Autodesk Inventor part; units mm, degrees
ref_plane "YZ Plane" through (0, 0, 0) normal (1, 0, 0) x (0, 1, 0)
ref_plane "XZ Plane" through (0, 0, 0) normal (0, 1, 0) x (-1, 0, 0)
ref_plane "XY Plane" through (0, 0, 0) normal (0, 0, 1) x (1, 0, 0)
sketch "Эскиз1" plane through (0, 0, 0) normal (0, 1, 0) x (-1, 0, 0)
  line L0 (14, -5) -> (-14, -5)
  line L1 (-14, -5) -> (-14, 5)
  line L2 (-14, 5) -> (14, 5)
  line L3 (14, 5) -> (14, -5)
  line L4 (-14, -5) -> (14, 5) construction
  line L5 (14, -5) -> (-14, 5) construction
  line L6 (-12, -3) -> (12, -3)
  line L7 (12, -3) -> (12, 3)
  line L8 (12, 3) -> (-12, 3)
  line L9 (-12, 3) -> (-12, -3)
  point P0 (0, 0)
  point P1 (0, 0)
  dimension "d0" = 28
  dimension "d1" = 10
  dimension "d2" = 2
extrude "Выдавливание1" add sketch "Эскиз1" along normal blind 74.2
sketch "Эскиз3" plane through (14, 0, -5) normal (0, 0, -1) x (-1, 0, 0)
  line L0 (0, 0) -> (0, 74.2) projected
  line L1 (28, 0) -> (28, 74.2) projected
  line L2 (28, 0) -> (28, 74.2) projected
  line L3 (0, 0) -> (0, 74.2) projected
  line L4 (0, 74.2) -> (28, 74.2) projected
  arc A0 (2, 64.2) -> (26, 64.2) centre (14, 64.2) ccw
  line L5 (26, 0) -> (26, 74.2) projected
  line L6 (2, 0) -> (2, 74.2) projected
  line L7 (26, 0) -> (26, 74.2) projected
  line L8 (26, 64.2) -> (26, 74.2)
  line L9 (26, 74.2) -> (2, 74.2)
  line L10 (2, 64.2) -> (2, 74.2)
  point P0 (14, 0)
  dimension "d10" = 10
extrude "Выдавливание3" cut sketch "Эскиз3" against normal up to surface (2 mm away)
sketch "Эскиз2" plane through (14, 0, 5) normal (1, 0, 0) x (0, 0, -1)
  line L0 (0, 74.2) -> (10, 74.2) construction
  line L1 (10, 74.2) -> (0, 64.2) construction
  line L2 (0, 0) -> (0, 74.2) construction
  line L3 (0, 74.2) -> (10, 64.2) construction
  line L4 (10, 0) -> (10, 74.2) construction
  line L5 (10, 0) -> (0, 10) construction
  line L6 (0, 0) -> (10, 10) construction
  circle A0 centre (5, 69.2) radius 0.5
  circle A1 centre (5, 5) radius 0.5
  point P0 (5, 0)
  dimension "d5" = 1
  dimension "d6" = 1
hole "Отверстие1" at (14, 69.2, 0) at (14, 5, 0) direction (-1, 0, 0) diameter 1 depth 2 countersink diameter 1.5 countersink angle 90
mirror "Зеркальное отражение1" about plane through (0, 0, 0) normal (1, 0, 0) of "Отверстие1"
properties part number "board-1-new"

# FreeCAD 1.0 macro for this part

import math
import FreeCAD as App
import Part
import Sketcher


def add_polygon(sketch, points):
    """Adds a closed chain of lines whose ends are joined by coincident constraints."""
    first, n = sketch.GeometryCount, len(points)
    for a, b in zip(points, points[1:] + points[:1]):
        sketch.addGeometry(Part.LineSegment(App.Vector(*a, 0), App.Vector(*b, 0)), False)
    for i in range(n):
        sketch.addConstraint(Sketcher.Constraint("Coincident", first + i, 2, first + (i + 1) % n, 1))

doc = App.newDocument("Part")
params = doc.addObject("Spreadsheet::Sheet", "Params")
for row, (alias, value) in enumerate([
    ("sketch1_width", "28 mm"),
    ("sketch1_height", "10 mm"),
    ("pad1_length", "74.2 mm"),
    ("sketch2_height", "10 mm"),
    ("sketch2_radius", "12 mm"),
    ("pocket1_length", "2 mm"),
    ("sketch3_diameter", "1 mm"),
    ("hole_diameter", "1 mm"),
    ("hole_depth", "2 mm"),
    ("hole_csink_diameter", "1.5 mm"),
], start=1):
    params.set(f"A{row}", alias)
    params.set(f"B{row}", "=" + value)
    params.setAlias(f"B{row}", alias)

body = doc.addObject("PartDesign::Body", "Body")

# Sketch on XZ plane
sketch1 = body.newObject("Sketcher::SketchObject", "Sketch")
sketch1.AttachmentSupport = (doc.getObject("XZ_Plane"), [""])
sketch1.MapMode = "FlatFace"
add_polygon(sketch1, [(14, -5), (-14, -5), (-14, 5), (14, 5)])  # lines 0-3
add_polygon(sketch1, [(-12, -3), (12, -3), (12, 3), (-12, 3)])  # lines 4-7
sketch1.addConstraint([
    Sketcher.Constraint("Horizontal", 0),
    Sketcher.Constraint("Vertical", 1),
    Sketcher.Constraint("Horizontal", 2),
    Sketcher.Constraint("Vertical", 3),
    Sketcher.Constraint("Horizontal", 4),
    Sketcher.Constraint("Vertical", 5),
    Sketcher.Constraint("Horizontal", 6),
    Sketcher.Constraint("Vertical", 7),
    Sketcher.Constraint("Symmetric", 0, 2, 2, 2, -1, 1),
    Sketcher.Constraint("Symmetric", 4, 2, 6, 2, -1, 1),
    Sketcher.Constraint("DistanceX", 0, 2, 0, 1, 28.0),
    Sketcher.Constraint("DistanceY", 1, 1, 1, 2, 10.0),
    Sketcher.Constraint("DistanceX", 4, 2, 3, 2, 2.0),
    Sketcher.Constraint("DistanceY", 3, 2, 4, 2, 2.0),
])
sketch1.setExpression("Constraints[18]", "Params.sketch1_width")
sketch1.setExpression("Constraints[19]", "Params.sketch1_height")
pad1 = body.newObject("PartDesign::Pad", "Pad")
pad1.Profile = sketch1
pad1.setExpression("Length", "Params.pad1_length")
pad1.Reversed = True

# Sketch on XY plane
sketch2 = body.newObject("Sketcher::SketchObject", "Sketch001")
sketch2.AttachmentSupport = (doc.getObject("XY_Plane"), [""])
sketch2.MapMode = "FlatFace"
sketch2.AttachmentOffset = App.Placement(App.Vector(0, 0, -5), App.Rotation())
sketch2.addGeometry([
    Part.LineSegment(App.Vector(-12, 74, 0), App.Vector(12, 74, 0)),
    Part.LineSegment(App.Vector(12, 74, 0), App.Vector(12, 64, 0)),
    Part.ArcOfCircle(Part.Circle(App.Vector(0, 64, 0), App.Vector(0, 0, 1), 12), math.radians(180), math.radians(360)),
    Part.LineSegment(App.Vector(-12, 64, 0), App.Vector(-12, 74, 0)),
], False)
sketch2.addConstraint([
    Sketcher.Constraint("Coincident", 0, 2, 1, 1),
    Sketcher.Constraint("Tangent", 1, 2, 2, 2),
    Sketcher.Constraint("Tangent", 2, 1, 3, 1),
    Sketcher.Constraint("Coincident", 3, 2, 0, 1),
    Sketcher.Constraint("Horizontal", 0),
    Sketcher.Constraint("Vertical", 1),
    Sketcher.Constraint("Vertical", 3),
    Sketcher.Constraint("PointOnObject", 2, 3, -2),
    Sketcher.Constraint("DistanceY", 1, 2, 1, 1, 10.0),
    Sketcher.Constraint("Radius", 2, 12.0),
    Sketcher.Constraint("DistanceY", -1, 1, 2, 3, 64.2),
])
sketch2.setExpression("Constraints[8]", "Params.sketch2_height")
sketch2.setExpression("Constraints[9]", "Params.sketch2_radius")
pocket1 = body.newObject("PartDesign::Pocket", "Pocket")
pocket1.Profile = sketch2
pocket1.setExpression("Length", "Params.pocket1_length")
pocket1.Reversed = True

# Sketch on YZ plane
sketch3 = body.newObject("Sketcher::SketchObject", "Sketch002")
sketch3.AttachmentSupport = (doc.getObject("YZ_Plane"), [""])
sketch3.MapMode = "FlatFace"
sketch3.AttachmentOffset = App.Placement(App.Vector(0, 0, 14), App.Rotation())
sketch3.addGeometry([
    Part.Circle(App.Vector(69.2, 0, 0), App.Vector(0, 0, 1), 0.5),
    Part.Circle(App.Vector(5, 0, 0), App.Vector(0, 0, 1), 0.5),
], False)
sketch3.addConstraint([
    Sketcher.Constraint("Equal", 0, 1),
    Sketcher.Constraint("PointOnObject", 0, 3, -1),
    Sketcher.Constraint("PointOnObject", 1, 3, -1),
    Sketcher.Constraint("Diameter", 0, 1.0),
    Sketcher.Constraint("DistanceX", -1, 1, 1, 3, 5.0),
    Sketcher.Constraint("DistanceX", -1, 1, 0, 3, 69.2),
])
sketch3.setExpression("Constraints[3]", "Params.sketch3_diameter")
doc.recompute()
hole = body.newObject("PartDesign::Hole", "Hole")
hole.Profile = sketch3
hole.ThreadType = "None"
hole.setExpression("Diameter", "Params.hole_diameter")
hole.DepthType = "Dimension"
hole.setExpression("Depth", "Params.hole_depth")
hole.DrillPoint = "Flat"
hole.HoleCutType = "Countersink"
hole.setExpression("HoleCutDiameter", "Params.hole_csink_diameter")
hole.HoleCutCountersinkAngle = 90
doc.recompute()

mirrored = body.newObject("PartDesign::Mirrored", "Mirrored")
mirrored.Originals = [hole]
mirrored.MirrorPlane = (doc.getObject("YZ_Plane"), [""])
body.Tip = mirrored

doc.recompute()
